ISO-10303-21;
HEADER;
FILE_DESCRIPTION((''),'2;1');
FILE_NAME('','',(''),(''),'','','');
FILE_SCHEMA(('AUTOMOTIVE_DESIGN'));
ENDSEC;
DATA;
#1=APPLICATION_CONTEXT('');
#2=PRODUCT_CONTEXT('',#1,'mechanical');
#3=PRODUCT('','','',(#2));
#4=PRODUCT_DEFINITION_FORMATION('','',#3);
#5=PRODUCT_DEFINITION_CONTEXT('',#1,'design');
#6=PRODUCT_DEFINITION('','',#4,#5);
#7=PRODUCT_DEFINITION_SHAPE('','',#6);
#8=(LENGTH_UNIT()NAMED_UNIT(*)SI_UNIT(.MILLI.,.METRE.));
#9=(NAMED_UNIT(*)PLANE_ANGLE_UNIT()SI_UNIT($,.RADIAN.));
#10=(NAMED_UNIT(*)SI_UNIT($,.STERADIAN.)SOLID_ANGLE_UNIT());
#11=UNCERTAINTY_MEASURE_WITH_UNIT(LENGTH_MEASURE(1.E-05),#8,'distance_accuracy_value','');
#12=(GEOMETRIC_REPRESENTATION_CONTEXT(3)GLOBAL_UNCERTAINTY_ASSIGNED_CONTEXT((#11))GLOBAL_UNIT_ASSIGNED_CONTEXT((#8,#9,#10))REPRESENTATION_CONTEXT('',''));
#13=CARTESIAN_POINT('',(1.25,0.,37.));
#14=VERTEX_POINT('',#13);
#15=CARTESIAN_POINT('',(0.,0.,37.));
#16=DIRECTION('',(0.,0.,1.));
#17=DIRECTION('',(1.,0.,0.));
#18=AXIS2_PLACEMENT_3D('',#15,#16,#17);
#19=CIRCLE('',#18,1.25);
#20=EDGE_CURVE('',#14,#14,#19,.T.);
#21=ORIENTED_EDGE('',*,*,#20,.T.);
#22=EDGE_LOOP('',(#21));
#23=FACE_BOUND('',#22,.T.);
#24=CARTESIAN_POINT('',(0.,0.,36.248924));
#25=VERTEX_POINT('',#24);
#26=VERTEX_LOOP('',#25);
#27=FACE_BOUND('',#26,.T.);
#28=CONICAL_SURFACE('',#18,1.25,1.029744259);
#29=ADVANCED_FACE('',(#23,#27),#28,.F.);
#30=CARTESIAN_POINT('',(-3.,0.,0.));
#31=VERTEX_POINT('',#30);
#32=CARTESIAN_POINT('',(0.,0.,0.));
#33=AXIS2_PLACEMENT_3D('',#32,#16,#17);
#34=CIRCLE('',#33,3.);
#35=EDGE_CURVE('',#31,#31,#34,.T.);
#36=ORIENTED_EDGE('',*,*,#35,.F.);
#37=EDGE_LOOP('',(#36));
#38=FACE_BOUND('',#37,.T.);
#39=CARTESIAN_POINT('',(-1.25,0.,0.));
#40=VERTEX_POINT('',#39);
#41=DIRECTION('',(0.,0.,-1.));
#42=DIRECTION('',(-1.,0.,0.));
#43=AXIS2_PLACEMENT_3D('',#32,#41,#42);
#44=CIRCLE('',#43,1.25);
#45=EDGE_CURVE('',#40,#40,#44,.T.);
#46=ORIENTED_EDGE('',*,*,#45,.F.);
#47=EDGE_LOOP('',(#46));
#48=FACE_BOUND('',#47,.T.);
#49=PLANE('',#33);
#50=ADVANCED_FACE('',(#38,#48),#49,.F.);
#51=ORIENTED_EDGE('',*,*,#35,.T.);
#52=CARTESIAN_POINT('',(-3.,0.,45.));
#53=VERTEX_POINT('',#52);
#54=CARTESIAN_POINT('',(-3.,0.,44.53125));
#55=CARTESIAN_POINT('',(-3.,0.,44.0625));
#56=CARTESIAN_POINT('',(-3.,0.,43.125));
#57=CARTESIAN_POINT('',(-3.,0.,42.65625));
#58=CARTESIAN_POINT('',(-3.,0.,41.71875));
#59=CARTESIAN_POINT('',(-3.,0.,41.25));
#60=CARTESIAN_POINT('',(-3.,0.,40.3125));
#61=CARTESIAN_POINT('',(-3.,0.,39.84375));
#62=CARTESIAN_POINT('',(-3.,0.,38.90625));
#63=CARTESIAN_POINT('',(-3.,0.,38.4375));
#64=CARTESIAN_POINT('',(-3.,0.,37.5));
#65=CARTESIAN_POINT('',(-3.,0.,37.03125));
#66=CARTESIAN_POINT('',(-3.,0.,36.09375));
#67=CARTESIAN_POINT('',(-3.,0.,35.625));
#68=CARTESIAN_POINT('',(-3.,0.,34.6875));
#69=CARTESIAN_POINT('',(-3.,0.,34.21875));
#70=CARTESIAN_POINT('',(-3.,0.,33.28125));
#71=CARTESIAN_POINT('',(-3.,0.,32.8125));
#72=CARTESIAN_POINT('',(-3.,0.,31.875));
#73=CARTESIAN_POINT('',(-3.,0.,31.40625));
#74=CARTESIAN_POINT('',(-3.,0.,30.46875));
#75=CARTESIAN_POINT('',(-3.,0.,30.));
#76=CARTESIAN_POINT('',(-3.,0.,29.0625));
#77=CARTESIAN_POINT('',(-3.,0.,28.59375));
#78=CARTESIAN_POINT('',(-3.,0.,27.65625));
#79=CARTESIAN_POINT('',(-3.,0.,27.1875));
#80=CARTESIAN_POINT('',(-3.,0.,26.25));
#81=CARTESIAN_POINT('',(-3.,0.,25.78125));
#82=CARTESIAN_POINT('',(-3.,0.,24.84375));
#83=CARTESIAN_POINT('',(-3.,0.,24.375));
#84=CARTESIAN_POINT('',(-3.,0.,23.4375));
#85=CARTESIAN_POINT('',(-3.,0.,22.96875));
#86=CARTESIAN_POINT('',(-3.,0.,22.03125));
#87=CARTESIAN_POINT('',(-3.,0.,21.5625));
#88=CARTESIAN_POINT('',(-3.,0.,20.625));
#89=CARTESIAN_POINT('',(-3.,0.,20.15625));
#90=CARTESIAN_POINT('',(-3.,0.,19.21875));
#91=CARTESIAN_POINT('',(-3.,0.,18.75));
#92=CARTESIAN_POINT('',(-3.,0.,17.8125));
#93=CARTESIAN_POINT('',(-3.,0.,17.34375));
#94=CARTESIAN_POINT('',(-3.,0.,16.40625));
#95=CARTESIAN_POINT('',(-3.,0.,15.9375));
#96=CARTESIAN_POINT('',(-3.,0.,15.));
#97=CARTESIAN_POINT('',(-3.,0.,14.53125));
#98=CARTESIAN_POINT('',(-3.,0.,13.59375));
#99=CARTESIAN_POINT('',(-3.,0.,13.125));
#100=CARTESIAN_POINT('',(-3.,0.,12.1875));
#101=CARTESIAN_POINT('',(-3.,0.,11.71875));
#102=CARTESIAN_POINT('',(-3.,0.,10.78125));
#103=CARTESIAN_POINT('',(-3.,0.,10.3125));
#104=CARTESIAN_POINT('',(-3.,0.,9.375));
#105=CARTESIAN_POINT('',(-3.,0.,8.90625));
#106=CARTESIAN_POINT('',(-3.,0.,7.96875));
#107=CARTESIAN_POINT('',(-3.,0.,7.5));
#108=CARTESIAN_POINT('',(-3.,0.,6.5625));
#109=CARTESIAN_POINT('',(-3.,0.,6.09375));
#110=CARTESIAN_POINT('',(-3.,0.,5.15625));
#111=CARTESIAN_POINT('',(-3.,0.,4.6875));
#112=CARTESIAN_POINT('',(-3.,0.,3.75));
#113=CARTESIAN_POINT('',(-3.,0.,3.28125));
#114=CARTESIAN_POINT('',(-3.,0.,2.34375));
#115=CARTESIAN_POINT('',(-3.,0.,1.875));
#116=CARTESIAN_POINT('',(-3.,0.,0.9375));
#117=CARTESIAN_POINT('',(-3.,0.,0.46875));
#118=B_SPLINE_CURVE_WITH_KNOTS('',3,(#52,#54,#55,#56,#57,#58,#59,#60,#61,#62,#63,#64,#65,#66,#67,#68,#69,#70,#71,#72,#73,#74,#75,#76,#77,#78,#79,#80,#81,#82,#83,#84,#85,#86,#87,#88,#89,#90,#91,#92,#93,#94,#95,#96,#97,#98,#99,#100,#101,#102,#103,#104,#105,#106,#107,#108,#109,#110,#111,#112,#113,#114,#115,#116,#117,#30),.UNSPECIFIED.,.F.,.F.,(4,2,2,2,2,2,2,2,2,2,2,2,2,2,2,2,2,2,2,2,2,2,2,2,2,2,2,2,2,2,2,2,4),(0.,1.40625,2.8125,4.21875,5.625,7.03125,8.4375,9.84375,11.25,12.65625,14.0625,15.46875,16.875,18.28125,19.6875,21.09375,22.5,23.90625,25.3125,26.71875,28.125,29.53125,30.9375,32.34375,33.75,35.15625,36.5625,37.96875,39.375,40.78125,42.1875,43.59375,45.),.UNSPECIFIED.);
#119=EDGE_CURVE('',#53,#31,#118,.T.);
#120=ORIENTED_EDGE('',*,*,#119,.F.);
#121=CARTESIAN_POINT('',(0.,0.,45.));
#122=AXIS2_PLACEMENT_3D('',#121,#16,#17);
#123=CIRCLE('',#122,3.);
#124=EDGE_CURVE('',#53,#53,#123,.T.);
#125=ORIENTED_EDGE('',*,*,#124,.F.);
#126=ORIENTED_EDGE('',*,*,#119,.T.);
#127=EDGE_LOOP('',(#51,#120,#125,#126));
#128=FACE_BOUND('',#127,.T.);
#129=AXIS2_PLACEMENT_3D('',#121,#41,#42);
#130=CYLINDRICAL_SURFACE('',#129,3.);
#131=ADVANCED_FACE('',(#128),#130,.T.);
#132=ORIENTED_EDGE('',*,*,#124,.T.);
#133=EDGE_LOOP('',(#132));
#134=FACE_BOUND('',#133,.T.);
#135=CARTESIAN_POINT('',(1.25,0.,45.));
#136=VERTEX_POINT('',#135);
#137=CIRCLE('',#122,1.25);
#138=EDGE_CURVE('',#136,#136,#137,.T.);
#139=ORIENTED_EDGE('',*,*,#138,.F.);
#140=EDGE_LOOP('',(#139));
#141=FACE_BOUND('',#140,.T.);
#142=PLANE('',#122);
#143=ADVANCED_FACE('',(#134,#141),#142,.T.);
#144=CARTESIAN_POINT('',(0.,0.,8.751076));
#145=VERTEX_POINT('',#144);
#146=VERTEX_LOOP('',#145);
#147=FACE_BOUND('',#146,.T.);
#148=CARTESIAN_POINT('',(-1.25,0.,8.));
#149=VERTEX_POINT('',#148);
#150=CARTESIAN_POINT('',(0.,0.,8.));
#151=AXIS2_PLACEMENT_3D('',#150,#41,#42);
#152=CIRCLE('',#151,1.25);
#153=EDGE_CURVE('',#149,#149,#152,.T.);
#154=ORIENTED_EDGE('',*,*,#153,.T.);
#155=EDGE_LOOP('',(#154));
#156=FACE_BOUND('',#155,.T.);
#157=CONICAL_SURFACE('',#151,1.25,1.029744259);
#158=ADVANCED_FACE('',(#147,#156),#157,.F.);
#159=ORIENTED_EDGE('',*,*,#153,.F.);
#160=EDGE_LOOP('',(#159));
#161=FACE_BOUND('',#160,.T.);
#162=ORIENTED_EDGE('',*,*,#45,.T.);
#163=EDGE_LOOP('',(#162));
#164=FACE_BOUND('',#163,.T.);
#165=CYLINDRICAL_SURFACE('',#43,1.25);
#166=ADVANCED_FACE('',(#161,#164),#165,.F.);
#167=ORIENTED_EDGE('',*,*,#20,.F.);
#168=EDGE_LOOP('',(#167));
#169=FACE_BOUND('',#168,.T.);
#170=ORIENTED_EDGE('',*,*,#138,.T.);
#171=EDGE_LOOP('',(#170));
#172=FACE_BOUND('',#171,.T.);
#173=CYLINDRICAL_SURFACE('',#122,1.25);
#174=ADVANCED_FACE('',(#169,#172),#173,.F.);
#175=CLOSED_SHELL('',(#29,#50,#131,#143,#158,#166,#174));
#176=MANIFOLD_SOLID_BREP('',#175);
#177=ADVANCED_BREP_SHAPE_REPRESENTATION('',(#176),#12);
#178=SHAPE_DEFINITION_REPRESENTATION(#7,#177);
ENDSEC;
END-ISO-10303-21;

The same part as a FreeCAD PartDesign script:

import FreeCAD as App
import Part
import Sketcher

V = App.Vector

doc = App.newDocument("Part")
body = doc.addObject("PartDesign::Body", "Body")

sketch1 = body.newObject("Sketcher::SketchObject", "Sketch")
sketch1.AttachmentSupport = (doc.getObject("XY_Plane"), [""])
sketch1.MapMode = "FlatFace"
sketch1.addGeometry(Part.Circle(V(0, 0, 0), V(0, 0, 1), 3), False)
sketch1.addConstraint([
    Sketcher.Constraint("Coincident", 0, 3, -1, 1),
    Sketcher.Constraint("Diameter", 0, 6.0),
])
pad1 = body.newObject("PartDesign::Pad", "Pad")
pad1.Profile = sketch1
pad1.Length = 45

sketch2 = body.newObject("Sketcher::SketchObject", "Sketch001")
sketch2.AttachmentSupport = (doc.getObject("XY_Plane"), [""])
sketch2.MapMode = "FlatFace"
sketch2.AttachmentOffset = App.Placement(V(0, 0, 45), App.Rotation())
sketch2.addGeometry(Part.Circle(V(0, 0, 0), V(0, 0, 1), 1.25), False)
sketch2.addConstraint([
    Sketcher.Constraint("Coincident", 0, 3, -1, 1),
    Sketcher.Constraint("Diameter", 0, 2.5),
])
doc.recompute()
hole = body.newObject("PartDesign::Hole", "Hole")
hole.Profile = sketch2
hole.ThreadType = "None"
hole.Diameter = 2.5
hole.DepthType = "Dimension"
hole.Depth = 8
hole.DrillPoint = "Angled"
hole.DrillPointAngle = 118

sketch3 = body.newObject("Sketcher::SketchObject", "Sketch002")
sketch3.AttachmentSupport = (doc.getObject("XY_Plane"), [""])
sketch3.MapMode = "FlatFace"
sketch3.addGeometry(Part.Circle(V(0, 0, 0), V(0, 0, 1), 1.25), False)
sketch3.addConstraint([
    Sketcher.Constraint("Coincident", 0, 3, -1, 1),
    Sketcher.Constraint("Diameter", 0, 2.5),
])
doc.recompute()
hole2 = body.newObject("PartDesign::Hole", "Hole001")
hole2.Profile = sketch3
hole2.ThreadType = "None"
hole2.Diameter = 2.5
hole2.DepthType = "Dimension"
hole2.Depth = 8
hole2.DrillPoint = "Angled"
hole2.DrillPointAngle = 118
hole2.Reversed = True

doc.recompute()
